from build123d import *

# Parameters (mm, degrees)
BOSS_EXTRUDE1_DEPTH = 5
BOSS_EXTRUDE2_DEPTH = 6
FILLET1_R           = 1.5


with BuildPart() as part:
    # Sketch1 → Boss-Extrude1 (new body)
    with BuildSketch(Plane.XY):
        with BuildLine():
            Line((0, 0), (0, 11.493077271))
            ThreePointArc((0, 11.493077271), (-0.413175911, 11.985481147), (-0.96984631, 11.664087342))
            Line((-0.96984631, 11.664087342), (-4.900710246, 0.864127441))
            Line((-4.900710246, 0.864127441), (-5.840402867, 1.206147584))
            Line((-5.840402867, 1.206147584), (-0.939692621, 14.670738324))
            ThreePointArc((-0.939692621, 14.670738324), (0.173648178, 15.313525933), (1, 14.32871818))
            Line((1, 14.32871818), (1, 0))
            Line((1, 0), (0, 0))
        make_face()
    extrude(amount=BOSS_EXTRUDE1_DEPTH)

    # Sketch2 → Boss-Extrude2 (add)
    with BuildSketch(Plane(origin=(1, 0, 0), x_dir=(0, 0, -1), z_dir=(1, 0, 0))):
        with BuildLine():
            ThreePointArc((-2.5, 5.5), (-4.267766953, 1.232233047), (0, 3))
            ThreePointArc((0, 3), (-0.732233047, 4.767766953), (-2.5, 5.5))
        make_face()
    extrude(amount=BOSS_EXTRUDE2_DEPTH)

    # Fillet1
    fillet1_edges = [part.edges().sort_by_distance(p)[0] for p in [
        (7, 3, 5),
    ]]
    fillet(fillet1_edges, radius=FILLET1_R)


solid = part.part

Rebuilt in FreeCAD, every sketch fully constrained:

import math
import FreeCAD as App
import Part
import Sketcher
from FreeCAD import Vector
Q = App.Units.Quantity


def edges_at(feature, points):
    """Names of the edges that pass closest to the given points."""
    edges = feature.Shape.Edges
    near = lambda p: min(range(len(edges)), key=lambda i: edges[i].distToShape(Part.Vertex(*p))[0])
    return sorted({f"Edge{near(p) + 1}" for p in points})

doc = App.newDocument("Part")
body = doc.addObject("PartDesign::Body", "Body")

# Sketch on XY plane
sketch1 = doc.addObject("Sketcher::SketchObject", "Sketch")
body.addObject(sketch1)
sketch1.AttachmentSupport = (doc.XY_Plane, [""])
sketch1.MapMode = "FlatFace"
sketch1.addGeometry([
    Part.LineSegment(Vector(0, 11.5, 0), Vector(0, 0, 0)),  # 0
    Part.LineSegment(Vector(0, 0, 0), Vector(1, 0, 0)),  # 1
    Part.LineSegment(Vector(1, 0, 0), Vector(1, 14.3, 0)),  # 2
    Part.ArcOfCircle(Part.Circle(Vector(0, 14.3, 0), Vector(0, 0, 1), 1), math.radians(0), math.radians(160)),  # 3
    Part.LineSegment(Vector(-0.9, 14.7, 0), Vector(-5.8, 1.2, 0)),  # 4
    Part.LineSegment(Vector(-5.8, 1.2, 0), Vector(-4.9, 0.9, 0)),  # 5
    Part.LineSegment(Vector(-4.9, 0.9, 0), Vector(-1, 11.7, 0)),  # 6
    Part.ArcOfCircle(Part.Circle(Vector(-0.5, 11.5, 0), Vector(0, 0, 1), 0.5), math.radians(0), math.radians(160)),  # 7
], False)
sketch1.addConstraint([
    Sketcher.Constraint("Coincident", 0, 2, 1, 1),
    Sketcher.Constraint("Coincident", 1, 2, 2, 1),
    Sketcher.Constraint("Tangent", 2, 2, 3, 1),
    Sketcher.Constraint("Tangent", 3, 2, 4, 1),
    Sketcher.Constraint("Coincident", 4, 2, 5, 1),
    Sketcher.Constraint("Coincident", 5, 2, 6, 1),
    Sketcher.Constraint("Tangent", 6, 2, 7, 2),
    Sketcher.Constraint("Tangent", 7, 1, 0, 1),
    Sketcher.Constraint("Vertical", 0),
    Sketcher.Constraint("Horizontal", 1),
    Sketcher.Constraint("Vertical", 2),
    Sketcher.Constraint("Coincident", 0, 2, -1, 1),
    Sketcher.Constraint("PointOnObject", 3, 3, -2),
    Sketcher.Constraint("Perpendicular", 4, 5),
    Sketcher.Constraint("Perpendicular", 5, 6),
    Sketcher.Constraint("Radius", 3, Q("1 mm")),
    Sketcher.Constraint("Radius", 7, Q("0.5 mm")),
    Sketcher.Constraint("Angle", 4, Q("-110 deg")),
    Sketcher.Constraint("Distance", 5, Q("1 mm")),
    Sketcher.Constraint("DistanceY", 2, 1, 2, 2, Q("14.328718 mm")),
    Sketcher.Constraint("Distance", 4, Q("14.328718 mm")),
])
pad1 = doc.addObject("PartDesign::Pad", "Pad")
body.addObject(pad1)
pad1.Profile = sketch1
pad1.Length = 5

# Sketch on YZ plane
sketch2 = doc.addObject("Sketcher::SketchObject", "Sketch001")
body.addObject(sketch2)
sketch2.AttachmentSupport = (doc.YZ_Plane, [""])
sketch2.MapMode = "FlatFace"
sketch2.AttachmentOffset = App.Placement(Vector(0, 0, 1), App.Rotation())
sketch2.addGeometry([
    Part.ArcOfCircle(Part.Circle(Vector(3, 2.5, 0), Vector(0, 0, 1), 2.5), math.radians(0), math.radians(270)),
    Part.ArcOfCircle(Part.Circle(Vector(3, 2.5, 0), Vector(0, 0, 1), 2.5), math.radians(-90), math.radians(0)),
], False)
sketch2.addConstraint([
    Sketcher.Constraint("Tangent", 0, 1, 1, 2),
    Sketcher.Constraint("Coincident", 1, 1, 0, 2),
    Sketcher.Constraint("PointOnObject", 1, 1, -1),
    Sketcher.Constraint("Horizontal", 1, 3, 0, 1),
    Sketcher.Constraint("Vertical", 0, 3, 1, 1),
    Sketcher.Constraint("Radius", 0, Q("2.5 mm")),
    Sketcher.Constraint("DistanceX", -1, 1, 0, 3, Q("3 mm")),
])
pad2 = doc.addObject("PartDesign::Pad", "Pad001")
body.addObject(pad2)
pad2.Profile = sketch2
pad2.Length = 6
doc.recompute()

fillet = doc.addObject("PartDesign::Fillet", "Fillet")
body.addObject(fillet)
fillet.Base = (pad2, edges_at(pad2, [(7, 1.232, 4.268)]))
fillet.Radius = 1.5

doc.recompute()
